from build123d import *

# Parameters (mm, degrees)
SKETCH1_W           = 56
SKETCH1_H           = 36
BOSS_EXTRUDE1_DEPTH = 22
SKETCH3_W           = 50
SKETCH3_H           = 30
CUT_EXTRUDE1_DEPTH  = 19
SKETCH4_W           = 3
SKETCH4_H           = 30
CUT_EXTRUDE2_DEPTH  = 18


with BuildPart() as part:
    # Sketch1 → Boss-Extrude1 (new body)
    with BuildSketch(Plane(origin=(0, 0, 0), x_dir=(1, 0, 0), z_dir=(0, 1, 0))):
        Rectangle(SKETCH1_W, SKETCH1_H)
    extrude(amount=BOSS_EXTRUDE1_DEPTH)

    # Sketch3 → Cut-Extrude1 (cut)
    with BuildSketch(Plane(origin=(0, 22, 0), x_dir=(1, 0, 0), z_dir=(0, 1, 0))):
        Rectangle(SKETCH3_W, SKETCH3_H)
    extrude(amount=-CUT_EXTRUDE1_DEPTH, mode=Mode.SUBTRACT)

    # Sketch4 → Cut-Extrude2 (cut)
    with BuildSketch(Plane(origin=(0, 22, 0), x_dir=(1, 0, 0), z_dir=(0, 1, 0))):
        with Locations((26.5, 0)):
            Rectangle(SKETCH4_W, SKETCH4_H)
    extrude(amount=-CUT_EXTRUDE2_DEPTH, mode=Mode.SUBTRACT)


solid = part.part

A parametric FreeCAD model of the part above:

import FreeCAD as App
import Part
import Sketcher

V = App.Vector
Q = App.Units.Quantity


def add_polygon(sketch, points):
    """Adds a closed chain of lines whose ends are joined by coincident constraints."""
    first, n = sketch.GeometryCount, len(points)
    for a, b in zip(points, points[1:] + points[:1]):
        sketch.addGeometry(Part.LineSegment(App.Vector(*a, 0), App.Vector(*b, 0)), False)
    for i in range(n):
        sketch.addConstraint(Sketcher.Constraint("Coincident", first + i, 2, first + (i + 1) % n, 1))

doc = App.newDocument("Part")
body = doc.addObject("PartDesign::Body", "Body")

# Sketch on XZ plane
sketch1 = body.newObject("Sketcher::SketchObject", "Sketch")
sketch1.AttachmentSupport = (doc.getObject("XZ_Plane"), [""])
sketch1.MapMode = "FlatFace"
add_polygon(sketch1, [(-28, -18), (-28, 18), (28, 18), (28, -18)])  # lines 0-3
sketch1.addConstraint(Sketcher.Constraint("Vertical", 0))
sketch1.addConstraint(Sketcher.Constraint("Horizontal", 1))
sketch1.addConstraint(Sketcher.Constraint("Vertical", 2))
sketch1.addConstraint(Sketcher.Constraint("Horizontal", 3))
sketch1.addConstraint(Sketcher.Constraint("Symmetric", 0, 2, 2, 2, -1, 1))
sketch1.addConstraint(Sketcher.Constraint("DistanceX", 1, 1, 1, 2, Q("56 mm")))
sketch1.addConstraint(Sketcher.Constraint("DistanceY", 0, 1, 0, 2, Q("36 mm")))
pad1 = body.newObject("PartDesign::Pad", "Pad")
pad1.Profile = sketch1
pad1.Length = 22
pad1.Reversed = True

# Sketch on XZ plane
sketch2 = body.newObject("Sketcher::SketchObject", "Sketch001")
sketch2.AttachmentSupport = (doc.getObject("XZ_Plane"), [""])
sketch2.MapMode = "FlatFace"
sketch2.AttachmentOffset = App.Placement(V(0, 0, -22), App.Rotation())
add_polygon(sketch2, [(-25, -15), (-25, 15), (25, 15), (25, -15)])  # lines 0-3
sketch2.addConstraint(Sketcher.Constraint("Vertical", 0))
sketch2.addConstraint(Sketcher.Constraint("Horizontal", 1))
sketch2.addConstraint(Sketcher.Constraint("Vertical", 2))
sketch2.addConstraint(Sketcher.Constraint("Horizontal", 3))
sketch2.addConstraint(Sketcher.Constraint("Symmetric", 0, 2, 2, 2, -1, 1))
sketch2.addConstraint(Sketcher.Constraint("DistanceX", 1, 1, 1, 2, Q("50 mm")))
sketch2.addConstraint(Sketcher.Constraint("DistanceY", 0, 1, 0, 2, Q("30 mm")))
pocket1 = body.newObject("PartDesign::Pocket", "Pocket")
pocket1.Profile = sketch2
pocket1.Length = 19
pocket1.Reversed = True

# Sketch on XZ plane
sketch3 = body.newObject("Sketcher::SketchObject", "Sketch002")
sketch3.AttachmentSupport = (doc.getObject("XZ_Plane"), [""])
sketch3.MapMode = "FlatFace"
sketch3.AttachmentOffset = App.Placement(V(0, 0, -22), App.Rotation())
add_polygon(sketch3, [(25, -15), (25, 15), (28, 15), (28, -15)])  # lines 0-3
sketch3.addConstraint(Sketcher.Constraint("Vertical", 0))
sketch3.addConstraint(Sketcher.Constraint("Horizontal", 1))
sketch3.addConstraint(Sketcher.Constraint("Vertical", 2))
sketch3.addConstraint(Sketcher.Constraint("Horizontal", 3))
sketch3.addConstraint(Sketcher.Constraint("DistanceX", 1, 1, 1, 2, Q("3 mm")))
sketch3.addConstraint(Sketcher.Constraint("DistanceY", 0, 1, 0, 2, Q("30 mm")))
sketch3.addConstraint(Sketcher.Constraint("DistanceX", -1, 1, 0, 2, Q("25 mm")))
sketch3.addConstraint(Sketcher.Constraint("DistanceY", -1, 1, 0, 2, Q("15 mm")))
pocket2 = body.newObject("PartDesign::Pocket", "Pocket001")
pocket2.Profile = sketch3
pocket2.Length = 18
pocket2.Reversed = True

doc.recompute()
